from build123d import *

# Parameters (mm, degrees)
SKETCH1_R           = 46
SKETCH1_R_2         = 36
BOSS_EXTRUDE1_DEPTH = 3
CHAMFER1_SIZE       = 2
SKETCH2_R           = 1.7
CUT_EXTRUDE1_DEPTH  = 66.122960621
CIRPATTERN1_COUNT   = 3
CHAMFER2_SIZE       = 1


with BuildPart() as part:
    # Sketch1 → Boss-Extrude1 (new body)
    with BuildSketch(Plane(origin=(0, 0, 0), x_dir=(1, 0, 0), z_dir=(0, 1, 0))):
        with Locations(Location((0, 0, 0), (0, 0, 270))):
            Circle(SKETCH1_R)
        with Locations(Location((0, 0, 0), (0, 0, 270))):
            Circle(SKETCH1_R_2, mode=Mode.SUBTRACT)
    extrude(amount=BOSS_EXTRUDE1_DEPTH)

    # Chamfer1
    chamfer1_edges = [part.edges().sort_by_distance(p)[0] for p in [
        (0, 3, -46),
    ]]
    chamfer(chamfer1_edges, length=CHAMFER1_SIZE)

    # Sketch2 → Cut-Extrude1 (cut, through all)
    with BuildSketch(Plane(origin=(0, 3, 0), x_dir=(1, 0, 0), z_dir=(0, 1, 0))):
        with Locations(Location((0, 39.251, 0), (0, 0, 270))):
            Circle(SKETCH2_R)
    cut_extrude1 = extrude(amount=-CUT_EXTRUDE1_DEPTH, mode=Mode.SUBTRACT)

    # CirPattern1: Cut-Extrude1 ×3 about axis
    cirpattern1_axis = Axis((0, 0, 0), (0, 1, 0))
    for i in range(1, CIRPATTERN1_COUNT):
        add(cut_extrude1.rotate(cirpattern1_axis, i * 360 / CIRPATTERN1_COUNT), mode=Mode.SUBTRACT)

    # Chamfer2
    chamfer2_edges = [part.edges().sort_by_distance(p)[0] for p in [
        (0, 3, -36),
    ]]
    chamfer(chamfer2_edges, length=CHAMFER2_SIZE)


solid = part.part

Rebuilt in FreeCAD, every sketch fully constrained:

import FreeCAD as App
import Part
import Sketcher
Q = App.Units.Quantity


def edges_at(feature, points):
    """Names of the edges that pass closest to the given points."""
    edges = feature.Shape.Edges
    near = lambda p: min(range(len(edges)), key=lambda i: edges[i].distToShape(Part.Vertex(*p))[0])
    return sorted({f"Edge{near(p) + 1}" for p in points})

doc = App.newDocument("Part")
body = doc.addObject("PartDesign::Body", "Body")

sketch1 = body.newObject("Sketcher::SketchObject", "Sketch")
sketch1.AttachmentSupport = (doc.getObject("XZ_Plane"), [""])
sketch1.MapMode = "FlatFace"
sketch1.addGeometry([
    Part.Circle(App.Vector(0, 0, 0), App.Vector(0, 0, 1), 46),
    Part.Circle(App.Vector(0, 0, 0), App.Vector(0, 0, 1), 36),
], False)
sketch1.addConstraint([
    Sketcher.Constraint("Coincident", 0, 3, -1, 1),
    Sketcher.Constraint("Coincident", 1, 3, -1, 1),
    Sketcher.Constraint("Diameter", 0, Q("92 mm")),
    Sketcher.Constraint("Diameter", 1, Q("72 mm")),
])
pad1 = body.newObject("PartDesign::Pad", "Pad")
pad1.Profile = sketch1
pad1.Length = 3
pad1.Reversed = True
doc.recompute()

chamfer = body.newObject("PartDesign::Chamfer", "Chamfer")
chamfer.Base = (pad1, edges_at(pad1, [(0, 3, -46)]))
chamfer.Size = 2

sketch2 = body.newObject("Sketcher::SketchObject", "Sketch001")
sketch2.AttachmentSupport = (doc.getObject("XZ_Plane"), [""])
sketch2.MapMode = "FlatFace"
sketch2.AttachmentOffset = App.Placement(App.Vector(0, 0, -3), App.Rotation())
sketch2.addGeometry(Part.Circle(App.Vector(0, -39.251, 0), App.Vector(0, 0, 1), 1.7), False)
sketch2.addConstraint([
    Sketcher.Constraint("PointOnObject", 0, 3, -2),
    Sketcher.Constraint("Diameter", 0, Q("3.4 mm")),
    Sketcher.Constraint("DistanceY", 0, 3, -1, 1, Q("39.251 mm")),
])
pocket1 = body.newObject("PartDesign::Pocket", "Pocket")
pocket1.Profile = sketch2
pocket1.Type = "ThroughAll"
pocket1.Reversed = True
doc.recompute()

polarpattern = body.newObject("PartDesign::PolarPattern", "PolarPattern")
polarpattern.Originals = [pocket1]
polarpattern.Axis = (doc.getObject("Y_Axis"), [""])
polarpattern.Angle = 360
polarpattern.Occurrences = 3
body.Tip = polarpattern
doc.recompute()

chamfer2 = body.newObject("PartDesign::Chamfer", "Chamfer001")
chamfer2.Base = (polarpattern, edges_at(polarpattern, [(0, 3, -36)]))
chamfer2.Size = 1

doc.recompute()
